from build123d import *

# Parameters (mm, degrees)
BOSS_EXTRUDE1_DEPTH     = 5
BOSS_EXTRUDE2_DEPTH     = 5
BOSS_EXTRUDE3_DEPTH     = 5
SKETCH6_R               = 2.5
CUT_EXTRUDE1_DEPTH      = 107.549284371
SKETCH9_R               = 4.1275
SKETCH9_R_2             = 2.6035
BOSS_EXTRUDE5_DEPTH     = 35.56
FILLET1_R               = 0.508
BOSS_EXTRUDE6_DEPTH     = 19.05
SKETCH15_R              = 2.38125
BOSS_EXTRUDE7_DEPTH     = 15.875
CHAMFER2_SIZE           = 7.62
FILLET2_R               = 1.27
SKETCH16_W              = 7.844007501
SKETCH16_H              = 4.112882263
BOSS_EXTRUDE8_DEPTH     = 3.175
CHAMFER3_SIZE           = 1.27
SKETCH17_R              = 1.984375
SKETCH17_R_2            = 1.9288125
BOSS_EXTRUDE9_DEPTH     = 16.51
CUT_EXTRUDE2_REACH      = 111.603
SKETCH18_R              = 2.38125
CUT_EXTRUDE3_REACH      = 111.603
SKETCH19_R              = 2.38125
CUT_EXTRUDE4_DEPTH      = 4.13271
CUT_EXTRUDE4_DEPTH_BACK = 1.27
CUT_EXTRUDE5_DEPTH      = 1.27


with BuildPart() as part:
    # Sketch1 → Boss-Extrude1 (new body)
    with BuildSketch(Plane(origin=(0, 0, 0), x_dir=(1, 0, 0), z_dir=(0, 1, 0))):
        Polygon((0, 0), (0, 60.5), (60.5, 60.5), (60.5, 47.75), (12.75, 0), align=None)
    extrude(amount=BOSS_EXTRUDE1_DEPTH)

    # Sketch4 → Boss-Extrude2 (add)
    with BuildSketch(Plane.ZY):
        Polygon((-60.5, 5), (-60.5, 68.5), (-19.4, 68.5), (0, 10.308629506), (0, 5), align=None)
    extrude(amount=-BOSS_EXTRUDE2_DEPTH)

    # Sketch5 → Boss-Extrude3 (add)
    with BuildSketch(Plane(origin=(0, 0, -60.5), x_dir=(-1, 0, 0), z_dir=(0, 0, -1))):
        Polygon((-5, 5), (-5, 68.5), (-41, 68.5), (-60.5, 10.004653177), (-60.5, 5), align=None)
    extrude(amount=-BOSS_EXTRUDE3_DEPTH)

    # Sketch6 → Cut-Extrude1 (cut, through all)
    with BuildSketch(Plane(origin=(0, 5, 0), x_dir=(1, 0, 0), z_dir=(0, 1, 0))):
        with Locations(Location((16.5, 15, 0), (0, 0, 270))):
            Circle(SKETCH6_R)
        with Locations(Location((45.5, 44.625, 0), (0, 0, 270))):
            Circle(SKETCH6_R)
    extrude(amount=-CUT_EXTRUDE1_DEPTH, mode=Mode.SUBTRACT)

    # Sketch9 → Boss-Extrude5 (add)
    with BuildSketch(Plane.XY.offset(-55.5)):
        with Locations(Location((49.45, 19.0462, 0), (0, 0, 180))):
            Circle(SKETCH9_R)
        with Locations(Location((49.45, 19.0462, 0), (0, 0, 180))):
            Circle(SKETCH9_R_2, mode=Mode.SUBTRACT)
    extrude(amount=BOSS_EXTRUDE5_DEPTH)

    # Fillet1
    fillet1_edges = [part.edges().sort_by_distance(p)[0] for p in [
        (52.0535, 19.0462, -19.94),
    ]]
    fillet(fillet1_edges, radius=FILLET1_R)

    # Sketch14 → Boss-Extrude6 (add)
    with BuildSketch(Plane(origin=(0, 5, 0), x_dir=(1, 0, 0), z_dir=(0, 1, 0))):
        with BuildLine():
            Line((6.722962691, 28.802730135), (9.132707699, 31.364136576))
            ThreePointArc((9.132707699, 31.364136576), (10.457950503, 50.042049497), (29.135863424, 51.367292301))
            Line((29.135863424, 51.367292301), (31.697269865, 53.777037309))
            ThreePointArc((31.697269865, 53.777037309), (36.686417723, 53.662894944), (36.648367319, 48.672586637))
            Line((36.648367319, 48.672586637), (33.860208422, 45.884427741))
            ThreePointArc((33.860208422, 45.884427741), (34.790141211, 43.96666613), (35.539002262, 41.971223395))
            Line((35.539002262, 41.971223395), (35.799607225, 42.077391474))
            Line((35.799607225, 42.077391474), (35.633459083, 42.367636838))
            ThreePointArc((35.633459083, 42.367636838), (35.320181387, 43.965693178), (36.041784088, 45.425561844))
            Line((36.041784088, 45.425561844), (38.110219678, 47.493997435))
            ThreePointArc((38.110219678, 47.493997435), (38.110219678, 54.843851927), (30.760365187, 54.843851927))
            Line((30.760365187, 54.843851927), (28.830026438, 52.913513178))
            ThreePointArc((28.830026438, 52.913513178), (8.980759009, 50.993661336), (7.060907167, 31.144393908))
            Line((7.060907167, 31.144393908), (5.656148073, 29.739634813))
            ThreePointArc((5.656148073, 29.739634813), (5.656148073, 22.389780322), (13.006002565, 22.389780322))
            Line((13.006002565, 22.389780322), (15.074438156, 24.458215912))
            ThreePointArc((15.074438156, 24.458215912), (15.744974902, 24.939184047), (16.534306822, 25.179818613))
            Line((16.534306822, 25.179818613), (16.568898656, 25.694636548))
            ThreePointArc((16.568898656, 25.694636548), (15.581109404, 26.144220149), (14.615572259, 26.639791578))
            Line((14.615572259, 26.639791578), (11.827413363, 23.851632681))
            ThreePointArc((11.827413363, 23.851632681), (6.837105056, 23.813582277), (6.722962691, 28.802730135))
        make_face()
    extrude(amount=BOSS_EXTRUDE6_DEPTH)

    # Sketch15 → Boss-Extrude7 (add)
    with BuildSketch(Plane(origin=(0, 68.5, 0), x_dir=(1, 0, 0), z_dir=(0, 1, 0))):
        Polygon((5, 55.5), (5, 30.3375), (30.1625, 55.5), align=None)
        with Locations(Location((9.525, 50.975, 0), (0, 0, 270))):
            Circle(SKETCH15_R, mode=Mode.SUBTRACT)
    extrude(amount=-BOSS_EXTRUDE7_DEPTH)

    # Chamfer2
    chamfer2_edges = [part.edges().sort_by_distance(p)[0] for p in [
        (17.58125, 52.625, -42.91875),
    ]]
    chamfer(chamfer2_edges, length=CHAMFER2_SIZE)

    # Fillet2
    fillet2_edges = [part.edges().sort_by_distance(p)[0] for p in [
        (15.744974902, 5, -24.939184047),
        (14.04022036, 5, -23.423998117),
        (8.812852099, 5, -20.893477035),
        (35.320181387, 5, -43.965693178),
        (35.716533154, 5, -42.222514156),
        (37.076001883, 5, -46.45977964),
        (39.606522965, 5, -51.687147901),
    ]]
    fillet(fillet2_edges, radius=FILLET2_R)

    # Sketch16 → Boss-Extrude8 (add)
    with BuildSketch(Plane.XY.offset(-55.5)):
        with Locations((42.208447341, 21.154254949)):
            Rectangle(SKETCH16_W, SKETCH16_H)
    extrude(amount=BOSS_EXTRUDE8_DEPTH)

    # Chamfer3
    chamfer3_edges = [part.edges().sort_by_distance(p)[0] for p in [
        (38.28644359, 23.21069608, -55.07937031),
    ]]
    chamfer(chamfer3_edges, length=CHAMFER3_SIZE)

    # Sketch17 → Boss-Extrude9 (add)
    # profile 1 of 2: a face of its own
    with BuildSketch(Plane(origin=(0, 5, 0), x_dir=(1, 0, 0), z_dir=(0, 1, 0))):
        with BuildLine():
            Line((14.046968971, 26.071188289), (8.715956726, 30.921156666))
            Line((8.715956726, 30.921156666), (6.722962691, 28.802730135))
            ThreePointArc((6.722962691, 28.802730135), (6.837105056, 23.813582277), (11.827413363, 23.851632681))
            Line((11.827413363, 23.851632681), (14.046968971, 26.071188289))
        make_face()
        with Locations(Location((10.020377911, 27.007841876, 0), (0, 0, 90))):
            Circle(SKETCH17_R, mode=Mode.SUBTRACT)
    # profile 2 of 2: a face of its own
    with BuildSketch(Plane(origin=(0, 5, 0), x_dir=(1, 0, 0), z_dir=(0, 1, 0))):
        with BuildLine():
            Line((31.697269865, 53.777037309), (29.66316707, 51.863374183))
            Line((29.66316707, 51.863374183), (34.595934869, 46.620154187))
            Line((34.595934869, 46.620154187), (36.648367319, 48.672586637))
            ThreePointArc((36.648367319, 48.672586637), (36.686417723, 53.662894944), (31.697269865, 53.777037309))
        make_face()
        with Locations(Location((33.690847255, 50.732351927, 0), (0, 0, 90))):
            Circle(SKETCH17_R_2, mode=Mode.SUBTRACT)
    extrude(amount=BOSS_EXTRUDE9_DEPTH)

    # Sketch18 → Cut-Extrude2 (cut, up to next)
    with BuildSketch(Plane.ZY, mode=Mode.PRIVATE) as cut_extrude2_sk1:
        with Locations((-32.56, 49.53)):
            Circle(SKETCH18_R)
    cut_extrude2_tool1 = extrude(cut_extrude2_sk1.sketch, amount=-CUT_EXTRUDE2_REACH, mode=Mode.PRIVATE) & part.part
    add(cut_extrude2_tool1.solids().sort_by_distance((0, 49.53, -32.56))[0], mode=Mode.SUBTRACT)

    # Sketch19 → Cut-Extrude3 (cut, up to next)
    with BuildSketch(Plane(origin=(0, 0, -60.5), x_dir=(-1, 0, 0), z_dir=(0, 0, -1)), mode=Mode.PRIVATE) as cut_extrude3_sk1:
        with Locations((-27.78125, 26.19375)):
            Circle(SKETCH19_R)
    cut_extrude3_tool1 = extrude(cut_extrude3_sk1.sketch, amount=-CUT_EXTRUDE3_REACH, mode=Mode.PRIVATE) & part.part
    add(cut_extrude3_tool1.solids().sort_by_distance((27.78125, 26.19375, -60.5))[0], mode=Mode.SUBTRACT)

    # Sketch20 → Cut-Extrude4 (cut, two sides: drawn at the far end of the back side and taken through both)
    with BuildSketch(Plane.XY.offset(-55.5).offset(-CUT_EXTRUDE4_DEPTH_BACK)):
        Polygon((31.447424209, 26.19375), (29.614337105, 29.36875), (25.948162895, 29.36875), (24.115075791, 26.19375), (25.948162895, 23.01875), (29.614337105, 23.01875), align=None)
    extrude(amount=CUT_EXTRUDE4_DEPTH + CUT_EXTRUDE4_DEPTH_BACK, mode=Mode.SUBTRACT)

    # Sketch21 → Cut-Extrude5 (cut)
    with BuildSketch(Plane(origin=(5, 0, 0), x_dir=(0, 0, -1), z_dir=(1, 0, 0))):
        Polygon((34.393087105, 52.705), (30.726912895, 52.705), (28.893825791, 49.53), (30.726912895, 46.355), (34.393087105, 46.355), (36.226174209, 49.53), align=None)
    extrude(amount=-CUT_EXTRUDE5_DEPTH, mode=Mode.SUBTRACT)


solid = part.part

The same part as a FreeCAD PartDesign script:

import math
import FreeCAD as App
import Part
import Sketcher

V = App.Vector
Q = App.Units.Quantity


def edges_at(feature, points):
    """Names of the edges that pass closest to the given points."""
    edges = feature.Shape.Edges
    near = lambda p: min(range(len(edges)), key=lambda i: edges[i].distToShape(Part.Vertex(*p))[0])
    return sorted({f"Edge{near(p) + 1}" for p in points})

doc = App.newDocument("Part")
params = doc.addObject("Spreadsheet::Sheet", "Params")
for row, (alias, value) in enumerate([
    ("pad1_length", "5 mm"),
    ("sketch2_width", "2.5 in"),
    ("pad2_length", "5 mm"),
    ("sketch3_height", "2.5 in"),
    ("pad3_length", "5 mm"),
    ("sketch5_diameter", "0.325 in"),
    ("sketch5_diameter2", "0.205 in"),
    ("pad4_length", "1.4 in"),
    ("fillet_radius", "0.02 in"),
    ("sketch6_radius", "0.1 in"),
    ("sketch6_radius2", "0.14 in"),
    ("sketch6_radius3", "0.5625 in"),
    ("pad5_length", "0.75 in"),
    ("sketch7_diameter", "0.1875 in"),
    ("pad6_length", "0.625 in"),
    ("chamfer_size", "0.3 in"),
    ("fillet2_radius", "0.05 in"),
    ("pad7_length", "0.125 in"),
    ("chamfer2_size", "0.05 in"),
    ("sketch9_radius", "0.14 in"),
    ("sketch9_diameter", "0.15625 in"),
    ("pad8_length", "0.65 in"),
    ("sketch10_diameter", "0.1875 in"),
    ("sketch11_diameter", "0.1875 in"),
    ("pocket4_length", "4.13271 mm"),
    ("pocket4_length2", "0.05 in"),
    ("pocket5_length", "0.05 in"),
], start=1):
    params.set(f"A{row}", alias)
    params.set(f"B{row}", "=" + value)
    params.setAlias(f"B{row}", alias)

body = doc.addObject("PartDesign::Body", "Body")

# Sketch on XZ plane
sketch1 = doc.addObject("Sketcher::SketchObject", "Sketch")
body.addObject(sketch1)
sketch1.AttachmentSupport = (doc.XZ_Plane, [""])
sketch1.MapMode = "FlatFace"
sketch1.addGeometry([
    Part.LineSegment(V(0, -60, 0), V(0, 0, 0)),  # 0
    Part.LineSegment(V(0, 0, 0), V(13, 0, 0)),  # 1
    Part.LineSegment(V(13, 0, 0), V(60, -48, 0)),  # 2
    Part.LineSegment(V(60, -48, 0), V(60, -60, 0)),  # 3
    Part.LineSegment(V(60, -60, 0), V(0, -60, 0)),  # 4
], False)
sketch1.addConstraint([
    Sketcher.Constraint("Coincident", 0, 2, 1, 1),
    Sketcher.Constraint("Coincident", 1, 2, 2, 1),
    Sketcher.Constraint("Coincident", 2, 2, 3, 1),
    Sketcher.Constraint("Coincident", 3, 2, 4, 1),
    Sketcher.Constraint("Coincident", 4, 2, 0, 1),
    Sketcher.Constraint("Vertical", 0),
    Sketcher.Constraint("Horizontal", 1),
    Sketcher.Constraint("Vertical", 3),
    Sketcher.Constraint("Horizontal", 4),
    Sketcher.Constraint("Coincident", 0, 2, -1, 1),
    Sketcher.Constraint("Equal", 4, 0),
    Sketcher.Constraint("Equal", 1, 3),
    Sketcher.Constraint("DistanceX", 1, 1, 1, 2, Q("12.75 mm")),
    Sketcher.Constraint("DistanceX", 4, 2, 4, 1, Q("60.5 mm")),
])
pad1 = doc.addObject("PartDesign::Pad", "Pad")
body.addObject(pad1)
pad1.Profile = sketch1
pad1.setExpression("Length", "Params.pad1_length")
pad1.Reversed = True

# Sketch on YZ plane
sketch2 = doc.addObject("Sketcher::SketchObject", "Sketch001")
body.addObject(sketch2)
sketch2.AttachmentSupport = (doc.YZ_Plane, [""])
sketch2.MapMode = "FlatFace"
sketch2.addGeometry([
    Part.LineSegment(V(68, -60, 0), V(5, -60, 0)),  # 0
    Part.LineSegment(V(5, -60, 0), V(5, 0, 0)),  # 1
    Part.LineSegment(V(5, 0, 0), V(10, 0, 0)),  # 2
    Part.LineSegment(V(10, 0, 0), V(68, -19, 0)),  # 3
    Part.LineSegment(V(68, -19, 0), V(68, -60, 0)),  # 4
], False)
sketch2.addConstraint([
    Sketcher.Constraint("Coincident", 0, 2, 1, 1),
    Sketcher.Constraint("Coincident", 1, 2, 2, 1),
    Sketcher.Constraint("Coincident", 2, 2, 3, 1),
    Sketcher.Constraint("Coincident", 3, 2, 4, 1),
    Sketcher.Constraint("Coincident", 4, 2, 0, 1),
    Sketcher.Constraint("Horizontal", 0),
    Sketcher.Constraint("Vertical", 1),
    Sketcher.Constraint("Horizontal", 2),
    Sketcher.Constraint("Vertical", 4),
    Sketcher.Constraint("PointOnObject", 1, 2, -1),
    Sketcher.Constraint("DistanceX", 0, 2, 0, 1, Q("2.5 in")),
    Sketcher.Constraint("DistanceY", 1, 1, 1, 2, Q("60.5 mm")),
    Sketcher.Constraint("DistanceY", 4, 2, 4, 1, Q("41.1 mm")),
    Sketcher.Constraint("Distance", 3, Q("61.34 mm")),
    Sketcher.Constraint("DistanceX", -1, 1, 0, 2, Q("5 mm")),
])
sketch2.setExpression("Constraints[10]", "Params.sketch2_width")
pad2 = doc.addObject("PartDesign::Pad", "Pad001")
body.addObject(pad2)
pad2.Profile = sketch2
pad2.setExpression("Length", "Params.pad2_length")

# Sketch on XY plane
sketch3 = doc.addObject("Sketcher::SketchObject", "Sketch002")
body.addObject(sketch3)
sketch3.AttachmentSupport = (doc.XY_Plane, [""])
sketch3.MapMode = "FlatFace"
sketch3.AttachmentOffset = App.Placement(V(0, 0, -60.5), App.Rotation())
sketch3.addGeometry([
    Part.LineSegment(V(5, 5, 0), V(5, 68, 0)),  # 0
    Part.LineSegment(V(5, 68, 0), V(41, 68, 0)),  # 1
    Part.LineSegment(V(41, 68, 0), V(60, 10, 0)),  # 2
    Part.LineSegment(V(60, 10, 0), V(60, 5, 0)),  # 3
    Part.LineSegment(V(60, 5, 0), V(5, 5, 0)),  # 4
], False)
sketch3.addConstraint([
    Sketcher.Constraint("Coincident", 0, 2, 1, 1),
    Sketcher.Constraint("Coincident", 1, 2, 2, 1),
    Sketcher.Constraint("Coincident", 2, 2, 3, 1),
    Sketcher.Constraint("Coincident", 3, 2, 4, 1),
    Sketcher.Constraint("Coincident", 4, 2, 0, 1),
    Sketcher.Constraint("Vertical", 0),
    Sketcher.Constraint("Horizontal", 1),
    Sketcher.Constraint("Vertical", 3),
    Sketcher.Constraint("Horizontal", 4),
    Sketcher.Constraint("DistanceY", 0, 1, 0, 2, Q("2.5 in")),
    Sketcher.Constraint("DistanceX", 1, 1, 1, 2, Q("36 mm")),
    Sketcher.Constraint("DistanceX", 4, 2, 4, 1, Q("55.5 mm")),
    Sketcher.Constraint("Distance", 2, Q("61.66 mm")),
    Sketcher.Constraint("DistanceX", -1, 1, 0, 2, Q("5 mm")),
    Sketcher.Constraint("DistanceY", -1, 1, 0, 2, Q("68.5 mm")),
])
sketch3.setExpression("Constraints[9]", "Params.sketch3_height")
pad3 = doc.addObject("PartDesign::Pad", "Pad002")
body.addObject(pad3)
pad3.Profile = sketch3
pad3.setExpression("Length", "Params.pad3_length")

# Sketch on XZ plane
sketch4 = doc.addObject("Sketcher::SketchObject", "Sketch003")
body.addObject(sketch4)
sketch4.AttachmentSupport = (doc.XZ_Plane, [""])
sketch4.MapMode = "FlatFace"
sketch4.AttachmentOffset = App.Placement(V(0, 0, -5), App.Rotation())
sketch4.addGeometry([
    Part.Circle(V(16.5, -15, 0), V(0, 0, 1), 2.5),
    Part.Circle(V(45.5, -44.6, 0), V(0, 0, 1), 2.5),
], False)
sketch4.addConstraint([
    Sketcher.Constraint("Equal", 0, 1),
    Sketcher.Constraint("Diameter", 0, Q("5 mm")),
    Sketcher.Constraint("DistanceX", -1, 1, 0, 3, Q("16.5 mm")),
    Sketcher.Constraint("DistanceY", 0, 3, -1, 1, Q("15 mm")),
    Sketcher.Constraint("DistanceX", -1, 1, 1, 3, Q("45.5 mm")),
    Sketcher.Constraint("DistanceY", 1, 3, -1, 1, Q("44.625 mm")),
])
pocket1 = doc.addObject("PartDesign::Pocket", "Pocket")
body.addObject(pocket1)
pocket1.Profile = sketch4
pocket1.Type = "ThroughAll"
pocket1.Reversed = True

# Sketch on XY plane
sketch5 = doc.addObject("Sketcher::SketchObject", "Sketch004")
body.addObject(sketch5)
sketch5.AttachmentSupport = (doc.XY_Plane, [""])
sketch5.MapMode = "FlatFace"
sketch5.AttachmentOffset = App.Placement(V(0, 0, -55.5), App.Rotation())
sketch5.addGeometry([
    Part.Circle(V(49.5, 19, 0), V(0, 0, 1), 4.1),
    Part.Circle(V(49.5, 19, 0), V(0, 0, 1), 2.6),
], False)
sketch5.addConstraint([
    Sketcher.Constraint("Coincident", 1, 3, 0, 3),
    Sketcher.Constraint("Diameter", 0, Q("0.325 in")),
    Sketcher.Constraint("Diameter", 1, Q("0.205 in")),
    Sketcher.Constraint("DistanceX", -1, 1, 0, 3, Q("49.45 mm")),
    Sketcher.Constraint("DistanceY", -1, 1, 0, 3, Q("19.0462 mm")),
])
sketch5.setExpression("Constraints[1]", "Params.sketch5_diameter")
sketch5.setExpression("Constraints[2]", "Params.sketch5_diameter2")
pad4 = doc.addObject("PartDesign::Pad", "Pad003")
body.addObject(pad4)
pad4.Profile = sketch5
pad4.setExpression("Length", "Params.pad4_length")
doc.recompute()

fillet = doc.addObject("PartDesign::Fillet", "Fillet")
body.addObject(fillet)
fillet.Base = (pad4, edges_at(pad4, [(52.053, 19.046, -19.94)]))
fillet.setExpression("Radius", "Params.fillet_radius")

# Sketch on XZ plane
sketch6 = doc.addObject("Sketcher::SketchObject", "Sketch005")
body.addObject(sketch6)
sketch6.AttachmentSupport = (doc.XZ_Plane, [""])
sketch6.MapMode = "FlatFace"
sketch6.AttachmentOffset = App.Placement(V(0, 0, -5), App.Rotation())
sketch6.addGeometry([
    Part.LineSegment(V(6.72, -28.8, 0), V(9.13, -31.36, 0)),  # 0
    Part.ArcOfCircle(Part.Circle(V(20.56, -39.94, 0), V(0, 0, 1), 14.29), math.radians(143), math.radians(307)),  # 1
    Part.LineSegment(V(29.14, -51.37, 0), V(31.7, -53.78, 0)),  # 2
    Part.ArcOfCircle(Part.Circle(V(34.13, -51.19, 0), V(0, 0, 1), 3.56), math.radians(-133), math.radians(45)),  # 3
    Part.LineSegment(V(36.65, -48.67, 0), V(33.86, -45.88, 0)),  # 4
    Part.ArcOfCircle(Part.Circle(V(13.6, -34.88, 0), V(0, 0, 1), 23.06), math.radians(-28.52), math.radians(-17.92)),  # 5
    Part.LineSegment(V(35.54, -41.97, 0), V(35.8, -42.08, 0)),  # 6
    Part.LineSegment(V(35.8, -42.08, 0), V(35.63, -42.37, 0)),  # 7
    Part.ArcOfCircle(Part.Circle(V(37.84, -43.63, 0), V(0, 0, 1), 2.54), math.radians(150), math.radians(225)),  # 8
    Part.LineSegment(V(36.04, -45.43, 0), V(38.11, -47.49, 0)),  # 9
    Part.ArcOfCircle(Part.Circle(V(34.44, -51.17, 0), V(0, 0, 1), 5.2), math.radians(-135), math.radians(45)),  # 10
    Part.LineSegment(V(30.76, -54.84, 0), V(28.83, -52.91, 0)),  # 11
    Part.ArcOfCircle(Part.Circle(V(20.07, -39.9, 0), V(0, 0, 1), 15.68), math.radians(146), math.radians(304)),  # 12
    Part.LineSegment(V(7.06, -31.14, 0), V(5.66, -29.74, 0)),  # 13
    Part.ArcOfCircle(Part.Circle(V(9.33, -26.06, 0), V(0, 0, 1), 5.2), math.radians(45), math.radians(225)),  # 14
    Part.LineSegment(V(13.01, -22.39, 0), V(15.07, -24.46, 0)),  # 15
    Part.ArcOfCircle(Part.Circle(V(16.87, -22.66, 0), V(0, 0, 1), 2.54), math.radians(-135), math.radians(-98)),  # 16
    Part.LineSegment(V(16.53, -25.18, 0), V(16.57, -25.69, 0)),  # 17
    Part.ArcOfCircle(Part.Circle(V(25.62, -46.9, 0), V(0, 0, 1), 23.06), math.radians(113.12), math.radians(118.52)),  # 18
    Part.LineSegment(V(14.62, -26.64, 0), V(11.83, -23.85, 0)),  # 19
    Part.ArcOfCircle(Part.Circle(V(9.31, -26.37, 0), V(0, 0, 1), 3.56), math.radians(45), math.radians(223)),  # 20
], False)
sketch6.addConstraint([
    Sketcher.Constraint("Coincident", 0, 2, 1, 1),
    Sketcher.Constraint("Coincident", 1, 2, 2, 1),
    Sketcher.Constraint("Tangent", 2, 2, 3, 1),
    Sketcher.Constraint("Tangent", 3, 2, 4, 1),
    Sketcher.Constraint("Coincident", 4, 2, 5, 1),
    Sketcher.Constraint("Coincident", 5, 2, 6, 1),
    Sketcher.Constraint("Coincident", 6, 2, 7, 1),
    Sketcher.Constraint("Tangent", 7, 2, 8, 1),
    Sketcher.Constraint("Tangent", 8, 2, 9, 1),
    Sketcher.Constraint("Tangent", 9, 2, 10, 2),
    Sketcher.Constraint("Tangent", 10, 1, 11, 1),
    Sketcher.Constraint("Coincident", 11, 2, 12, 2),
    Sketcher.Constraint("Coincident", 12, 1, 13, 1),
    Sketcher.Constraint("Tangent", 13, 2, 14, 2),
    Sketcher.Constraint("Tangent", 14, 1, 15, 1),
    Sketcher.Constraint("Tangent", 15, 2, 16, 1),
    Sketcher.Constraint("Coincident", 16, 2, 17, 1),
    Sketcher.Constraint("Coincident", 17, 2, 18, 1),
    Sketcher.Constraint("Coincident", 18, 2, 19, 1),
    Sketcher.Constraint("Tangent", 19, 2, 20, 1),
    Sketcher.Constraint("Tangent", 20, 2, 0, 1),
    Sketcher.Constraint("Equal", 10, 14),
    Sketcher.Constraint("Equal", 8, 16),
    Sketcher.Constraint("Equal", 5, 18),
    Sketcher.Constraint("Equal", 3, 20),
    Sketcher.Constraint("Parallel", 4, 9),
    Sketcher.Constraint("Parallel", 9, 11),
    Sketcher.Constraint("Parallel", 11, 13),
    Sketcher.Constraint("Parallel", 13, 15),
    Sketcher.Constraint("Parallel", 15, 19),
    Sketcher.Constraint("Equal", 0, 2),
    Sketcher.Constraint("Equal", 9, 15),
    Sketcher.Constraint("Equal", 4, 19),
    Sketcher.Constraint("Radius", 8, Q("0.1 in")),
    Sketcher.Constraint("Radius", 3, Q("0.14 in")),
    Sketcher.Constraint("Angle", 4, Q("135 deg")),
    Sketcher.Constraint("Radius", 1, Q("0.5625 in")),
    Sketcher.Constraint("Radius", 10, Q("5.197132 mm")),
    Sketcher.Constraint("Radius", 12, Q("15.683818 mm")),
    Sketcher.Constraint("DistanceX", 16, 3, 12, 3, Q("0.1260001 in")),
    Sketcher.Constraint("DistanceY", 17, 2, -1, 1, Q("1.0115999 in")),
    Sketcher.Constraint("Radius", 5, Q("23.055142 mm")),
    Sketcher.Constraint("Distance", 6, Q("0.281401 mm")),
    Sketcher.Constraint("DistanceX", -1, 1, 17, 2, Q("16.568899 mm")),
    Sketcher.Constraint("DistanceX", 12, 3, 10, 3, Q("14.364399 mm")),
    Sketcher.Constraint("DistanceY", 10, 3, 5, 2, Q("9.197701 mm")),
    Sketcher.Constraint("DistanceX", 4, 2, 6, 2, Q("1.939399 mm")),
    Sketcher.Constraint("DistanceX", 1, 2, 10, 1, Q("1.624502 mm")),
    Sketcher.Constraint("DistanceX", 12, 1, 0, 2, Q("2.071801 mm")),
    Sketcher.Constraint("DistanceY", 0, 2, 13, 2, Q("1.624502 mm")),
    Sketcher.Constraint("Distance", 0, Q("3.51677 mm")),
    Sketcher.Constraint("Distance", 9, Q("2.92521 mm")),
    Sketcher.Constraint("Distance", 11, Q("2.729911 mm")),
    Sketcher.Constraint("Distance", 13, Q("1.986629 mm")),
    Sketcher.Constraint("Distance", 17, Q("0.515979 mm")),
    Sketcher.Constraint("DistanceX", -1, 1, 1, 3, Q("20.560739 mm")),
    Sketcher.Constraint("DistanceY", 1, 3, -1, 1, Q("39.939261 mm")),
    Sketcher.Constraint("DistanceY", 3, 3, -1, 1, Q("51.187058 mm")),
    Sketcher.Constraint("DistanceY", 8, 3, -1, 1, Q("43.629511 mm")),
    Sketcher.Constraint("DistanceY", 18, 3, -1, 1, Q("46.897532 mm")),
    Sketcher.Constraint("DistanceX", -1, 1, 20, 3, Q("9.312942 mm")),
    Sketcher.Constraint("DistanceY", 6, 2, -1, 1, Q("42.077391 mm")),
])
sketch6.setExpression("Constraints[33]", "Params.sketch6_radius")
sketch6.setExpression("Constraints[34]", "Params.sketch6_radius2")
sketch6.setExpression("Constraints[36]", "Params.sketch6_radius3")
pad5 = doc.addObject("PartDesign::Pad", "Pad004")
body.addObject(pad5)
pad5.Profile = sketch6
pad5.setExpression("Length", "Params.pad5_length")
pad5.Reversed = True

# Sketch on XZ plane
sketch7 = doc.addObject("Sketcher::SketchObject", "Sketch006")
body.addObject(sketch7)
sketch7.AttachmentSupport = (doc.XZ_Plane, [""])
sketch7.MapMode = "FlatFace"
sketch7.AttachmentOffset = App.Placement(V(0, 0, -68.5), App.Rotation())
sketch7.addGeometry([
    Part.LineSegment(V(5, -55.5, 0), V(5, -30.3, 0)),
    Part.LineSegment(V(5, -30.3, 0), V(30.2, -55.5, 0)),
    Part.LineSegment(V(30.2, -55.5, 0), V(5, -55.5, 0)),
    Part.Circle(V(9.5, -51, 0), V(0, 0, 1), 2.4),
], False)
sketch7.addConstraint([
    Sketcher.Constraint("Coincident", 0, 2, 1, 1),
    Sketcher.Constraint("Coincident", 1, 2, 2, 1),
    Sketcher.Constraint("Coincident", 2, 2, 0, 1),
    Sketcher.Constraint("Vertical", 0),
    Sketcher.Constraint("Horizontal", 2),
    Sketcher.Constraint("Equal", 2, 0),
    Sketcher.Constraint("Diameter", 3, Q("0.1875 in")),
    Sketcher.Constraint("DistanceX", -1, 1, 3, 3, Q("0.375 in")),
    Sketcher.Constraint("DistanceX", -1, 1, 1, 2, Q("1.1875 in")),
    Sketcher.Constraint("DistanceY", 3, 3, 0, 2, Q("0.8125 in")),
    Sketcher.Constraint("DistanceX", 2, 2, 2, 1, Q("25.1625 mm")),
    Sketcher.Constraint("DistanceY", 3, 3, -1, 1, Q("50.975 mm")),
])
sketch7.setExpression("Constraints[6]", "Params.sketch7_diameter")
pad6 = doc.addObject("PartDesign::Pad", "Pad005")
body.addObject(pad6)
pad6.Profile = sketch7
pad6.setExpression("Length", "Params.pad6_length")
doc.recompute()

chamfer = doc.addObject("PartDesign::Chamfer", "Chamfer")
body.addObject(chamfer)
chamfer.Base = (pad6, edges_at(pad6, [(17.581, 52.625, -42.919)]))
chamfer.setExpression("Size", "Params.chamfer_size")
doc.recompute()

fillet2 = doc.addObject("PartDesign::Fillet", "Fillet001")
body.addObject(fillet2)
fillet2.Base = (chamfer, edges_at(chamfer, [
    (15.745, 5, -24.939),
    (14.04, 5, -23.424),
    (8.813, 5, -20.893),
    (35.32, 5, -43.966),
    (35.717, 5, -42.223),
    (37.076, 5, -46.46),
    (39.607, 5, -51.687),
]))
fillet2.setExpression("Radius", "Params.fillet2_radius")

# Sketch on XY plane
sketch8 = doc.addObject("Sketcher::SketchObject", "Sketch007")
body.addObject(sketch8)
sketch8.AttachmentSupport = (doc.XY_Plane, [""])
sketch8.MapMode = "FlatFace"
sketch8.AttachmentOffset = App.Placement(V(0, 0, -55.5), App.Rotation())
sketch8.addGeometry([
    Part.LineSegment(V(38.3, 23.2, 0), V(38.3, 19.1, 0)),
    Part.LineSegment(V(38.3, 19.1, 0), V(46.1, 19.1, 0)),
    Part.LineSegment(V(46.1, 19.1, 0), V(46.1, 23.2, 0)),
    Part.LineSegment(V(46.1, 23.2, 0), V(38.3, 23.2, 0)),
], False)
sketch8.addConstraint([
    Sketcher.Constraint("Coincident", 0, 2, 1, 1),
    Sketcher.Constraint("Coincident", 1, 2, 2, 1),
    Sketcher.Constraint("Coincident", 2, 2, 3, 1),
    Sketcher.Constraint("Coincident", 3, 2, 0, 1),
    Sketcher.Constraint("Vertical", 0),
    Sketcher.Constraint("Horizontal", 1),
    Sketcher.Constraint("Vertical", 2),
    Sketcher.Constraint("Horizontal", 3),
    Sketcher.Constraint("DistanceX", 1, 1, 1, 2, Q("7.844008 mm")),
    Sketcher.Constraint("DistanceY", 0, 2, 0, 1, Q("4.112882 mm")),
    Sketcher.Constraint("DistanceX", -1, 1, 1, 2, Q("46.130451 mm")),
    Sketcher.Constraint("DistanceY", -1, 1, 0, 2, Q("19.097814 mm")),
])
pad7 = doc.addObject("PartDesign::Pad", "Pad006")
body.addObject(pad7)
pad7.Profile = sketch8
pad7.setExpression("Length", "Params.pad7_length")
doc.recompute()

chamfer2 = doc.addObject("PartDesign::Chamfer", "Chamfer001")
body.addObject(chamfer2)
chamfer2.Base = (pad7, edges_at(pad7, [(38.286, 23.211, -55.079)]))
chamfer2.setExpression("Size", "Params.chamfer2_size")

# Sketch on XZ plane
sketch9 = doc.addObject("Sketcher::SketchObject", "Sketch008")
body.addObject(sketch9)
sketch9.AttachmentSupport = (doc.XZ_Plane, [""])
sketch9.MapMode = "FlatFace"
sketch9.AttachmentOffset = App.Placement(V(0, 0, -5), App.Rotation())
sketch9.addGeometry([
    Part.LineSegment(V(14, -26.1, 0), V(8.7, -30.9, 0)),  # 0
    Part.LineSegment(V(8.7, -30.9, 0), V(6.7, -28.8, 0)),  # 1
    Part.ArcOfCircle(Part.Circle(V(9.3, -26.4, 0), V(0, 0, 1), 3.6), math.radians(45), math.radians(223)),  # 2
    Part.LineSegment(V(11.8, -23.9, 0), V(14, -26.1, 0)),  # 3
    Part.Circle(V(10, -27, 0), V(0, 0, 1), 2),  # 4
    Part.LineSegment(V(31.7, -53.8, 0), V(29.7, -51.9, 0)),  # 5
    Part.LineSegment(V(29.7, -51.9, 0), V(34.6, -46.6, 0)),  # 6
    Part.LineSegment(V(34.6, -46.6, 0), V(36.6, -48.7, 0)),  # 7
    Part.ArcOfCircle(Part.Circle(V(34.1, -51.2, 0), V(0, 0, 1), 3.6), math.radians(-133), math.radians(45)),  # 8
    Part.Circle(V(33.7, -50.7, 0), V(0, 0, 1), 1.9),  # 9
], False)
sketch9.addConstraint([
    Sketcher.Constraint("Coincident", 0, 2, 1, 1),
    Sketcher.Constraint("Tangent", 1, 2, 2, 2),
    Sketcher.Constraint("Tangent", 2, 1, 3, 1),
    Sketcher.Constraint("Coincident", 3, 2, 0, 1),
    Sketcher.Constraint("Coincident", 5, 2, 6, 1),
    Sketcher.Constraint("Coincident", 6, 2, 7, 1),
    Sketcher.Constraint("Tangent", 7, 2, 8, 2),
    Sketcher.Constraint("Tangent", 8, 1, 5, 1),
    Sketcher.Constraint("Equal", 2, 8),
    Sketcher.Constraint("Perpendicular", 5, 6),
    Sketcher.Constraint("Parallel", 3, 7),
    Sketcher.Constraint("Radius", 2, Q("0.14 in")),
    Sketcher.Constraint("Diameter", 4, Q("0.15625 in")),
    Sketcher.Constraint("Angle", 3, Q("-45 deg")),
    Sketcher.Constraint("Diameter", 9, Q("3.857625 mm")),
    Sketcher.Constraint("DistanceY", 8, 3, 0, 2, Q("20.265902 mm")),
    Sketcher.Constraint("DistanceX", 3, 2, 5, 2, Q("15.616198 mm")),
    Sketcher.Constraint("DistanceX", 5, 2, 7, 2, Q("6.9852 mm")),
    Sketcher.Constraint("DistanceY", 7, 2, 3, 2, Q("22.601398 mm")),
    Sketcher.Constraint("Distance", 0, Q("7.207072 mm")),
    Sketcher.Constraint("Distance", 5, Q("2.792791 mm")),
    Sketcher.Constraint("DistanceX", -1, 1, 2, 3, Q("9.312942 mm")),
    Sketcher.Constraint("DistanceY", 4, 3, -1, 1, Q("27.007842 mm")),
    Sketcher.Constraint("DistanceY", 8, 3, -1, 1, Q("51.187058 mm")),
    Sketcher.Constraint("DistanceY", 9, 3, -1, 1, Q("50.732352 mm")),
    Sketcher.Constraint("DistanceY", 1, 2, -1, 1, Q("28.80273 mm")),
    Sketcher.Constraint("DistanceX", 9, 3, 8, 3, Q("0.443048 mm")),
    Sketcher.Constraint("DistanceX", 4, 3, 9, 3, Q("23.670469 mm")),
])
sketch9.setExpression("Constraints[11]", "Params.sketch9_radius")
sketch9.setExpression("Constraints[12]", "Params.sketch9_diameter")
pad8 = doc.addObject("PartDesign::Pad", "Pad007")
body.addObject(pad8)
pad8.Profile = sketch9
pad8.setExpression("Length", "Params.pad8_length")
pad8.Reversed = True

# Sketch on YZ plane
sketch10 = doc.addObject("Sketcher::SketchObject", "Sketch009")
body.addObject(sketch10)
sketch10.AttachmentSupport = (doc.YZ_Plane, [""])
sketch10.MapMode = "FlatFace"
sketch10.addGeometry(Part.Circle(V(49.5, -32.6, 0), V(0, 0, 1), 2.4), False)
sketch10.addConstraint([
    Sketcher.Constraint("Diameter", 0, Q("0.1875 in")),
    Sketcher.Constraint("DistanceX", -1, 1, 0, 3, Q("1.95 in")),
    Sketcher.Constraint("DistanceY", 0, 3, -1, 1, Q("32.56 mm")),
])
sketch10.setExpression("Constraints[0]", "Params.sketch10_diameter")
pocket2 = doc.addObject("PartDesign::Pocket", "Pocket001")
body.addObject(pocket2)
pocket2.Profile = sketch10
pocket2.Type = "UpToFirst"
pocket2.Reversed = True

# Sketch on XY plane
sketch11 = doc.addObject("Sketcher::SketchObject", "Sketch010")
body.addObject(sketch11)
sketch11.AttachmentSupport = (doc.XY_Plane, [""])
sketch11.MapMode = "FlatFace"
sketch11.AttachmentOffset = App.Placement(V(0, 0, -60.5), App.Rotation())
sketch11.addGeometry(Part.Circle(V(27.8, 26.2, 0), V(0, 0, 1), 2.4), False)
sketch11.addConstraint([
    Sketcher.Constraint("Diameter", 0, Q("0.1875 in")),
    Sketcher.Constraint("DistanceX", -1, 1, 0, 3, Q("1.09375 in")),
    Sketcher.Constraint("DistanceY", -1, 1, 0, 3, Q("1.03125 in")),
])
sketch11.setExpression("Constraints[0]", "Params.sketch11_diameter")
pocket3 = doc.addObject("PartDesign::Pocket", "Pocket002")
body.addObject(pocket3)
pocket3.Profile = sketch11
pocket3.Type = "UpToFirst"
pocket3.Reversed = True

# Sketch on XY plane
sketch12 = doc.addObject("Sketcher::SketchObject", "Sketch011")
body.addObject(sketch12)
sketch12.AttachmentSupport = (doc.XY_Plane, [""])
sketch12.MapMode = "FlatFace"
sketch12.AttachmentOffset = App.Placement(V(0, 0, -55.5), App.Rotation())
sketch12.addGeometry([
    Part.LineSegment(V(31.4, 26.2, 0), V(29.6, 29.4, 0)),  # 0
    Part.LineSegment(V(29.6, 29.4, 0), V(25.9, 29.4, 0)),  # 1
    Part.LineSegment(V(25.9, 29.4, 0), V(24.1, 26.2, 0)),  # 2
    Part.LineSegment(V(24.1, 26.2, 0), V(25.9, 23, 0)),  # 3
    Part.LineSegment(V(25.9, 23, 0), V(29.6, 23, 0)),  # 4
    Part.LineSegment(V(29.6, 23, 0), V(31.4, 26.2, 0)),  # 5
], False)
sketch12.addConstraint([
    Sketcher.Constraint("Coincident", 0, 2, 1, 1),
    Sketcher.Constraint("Coincident", 1, 2, 2, 1),
    Sketcher.Constraint("Coincident", 2, 2, 3, 1),
    Sketcher.Constraint("Coincident", 3, 2, 4, 1),
    Sketcher.Constraint("Coincident", 4, 2, 5, 1),
    Sketcher.Constraint("Coincident", 5, 2, 0, 1),
    Sketcher.Constraint("Horizontal", 1),
    Sketcher.Constraint("Horizontal", 4),
    Sketcher.Constraint("Parallel", 0, 3),
    Sketcher.Constraint("Parallel", 2, 5),
    Sketcher.Constraint("Horizontal", 2, 2, 5, 2),
    Sketcher.Constraint("Vertical", 1, 2, 3, 2),
    Sketcher.Constraint("Vertical", 0, 2, 4, 2),
    Sketcher.Constraint("Angle", 0, Q("120 deg")),
    Sketcher.Constraint("DistanceY", 3, 2, 1, 2, Q("0.25 in")),
    Sketcher.Constraint("DistanceY", -1, 1, 0, 2, Q("1.15625 in")),
    Sketcher.Constraint("DistanceX", 1, 2, 1, 1, Q("3.666174 mm")),
    Sketcher.Constraint("DistanceX", -1, 1, 0, 2, Q("29.614337 mm")),
])
pocket4 = doc.addObject("PartDesign::Pocket", "Pocket003")
body.addObject(pocket4)
pocket4.Profile = sketch12
pocket4.Type = "TwoLengths"
pocket4.setExpression("Length", "Params.pocket4_length")
pocket4.setExpression("Length2", "Params.pocket4_length2")
pocket4.Reversed = True

# Sketch on YZ plane
sketch13 = doc.addObject("Sketcher::SketchObject", "Sketch012")
body.addObject(sketch13)
sketch13.AttachmentSupport = (doc.YZ_Plane, [""])
sketch13.MapMode = "FlatFace"
sketch13.AttachmentOffset = App.Placement(V(0, 0, 5), App.Rotation())
sketch13.addGeometry([
    Part.LineSegment(V(52.7, -34.4, 0), V(52.7, -30.7, 0)),  # 0
    Part.LineSegment(V(52.7, -30.7, 0), V(49.5, -28.9, 0)),  # 1
    Part.LineSegment(V(49.5, -28.9, 0), V(46.4, -30.7, 0)),  # 2
    Part.LineSegment(V(46.4, -30.7, 0), V(46.4, -34.4, 0)),  # 3
    Part.LineSegment(V(46.4, -34.4, 0), V(49.5, -36.2, 0)),  # 4
    Part.LineSegment(V(49.5, -36.2, 0), V(52.7, -34.4, 0)),  # 5
], False)
sketch13.addConstraint([
    Sketcher.Constraint("Coincident", 0, 2, 1, 1),
    Sketcher.Constraint("Coincident", 1, 2, 2, 1),
    Sketcher.Constraint("Coincident", 2, 2, 3, 1),
    Sketcher.Constraint("Coincident", 3, 2, 4, 1),
    Sketcher.Constraint("Coincident", 4, 2, 5, 1),
    Sketcher.Constraint("Coincident", 5, 2, 0, 1),
    Sketcher.Constraint("Vertical", 0),
    Sketcher.Constraint("Vertical", 3),
    Sketcher.Constraint("Parallel", 1, 4),
    Sketcher.Constraint("Parallel", 2, 5),
    Sketcher.Constraint("Horizontal", 0, 2, 2, 2),
    Sketcher.Constraint("Horizontal", 3, 2, 5, 2),
    Sketcher.Constraint("Vertical", 1, 2, 4, 2),
    Sketcher.Constraint("Angle", 1, Q("150 deg")),
    Sketcher.Constraint("DistanceX", -1, 1, 1, 2, Q("1.95 in")),
    Sketcher.Constraint("DistanceX", 2, 2, 0, 2, Q("0.25 in")),
    Sketcher.Constraint("DistanceY", 0, 1, 0, 2, Q("3.666174 mm")),
    Sketcher.Constraint("DistanceY", 0, 2, -1, 1, Q("30.726913 mm")),
])
pocket5 = doc.addObject("PartDesign::Pocket", "Pocket004")
body.addObject(pocket5)
pocket5.Profile = sketch13
pocket5.setExpression("Length", "Params.pocket5_length")

doc.recompute()
